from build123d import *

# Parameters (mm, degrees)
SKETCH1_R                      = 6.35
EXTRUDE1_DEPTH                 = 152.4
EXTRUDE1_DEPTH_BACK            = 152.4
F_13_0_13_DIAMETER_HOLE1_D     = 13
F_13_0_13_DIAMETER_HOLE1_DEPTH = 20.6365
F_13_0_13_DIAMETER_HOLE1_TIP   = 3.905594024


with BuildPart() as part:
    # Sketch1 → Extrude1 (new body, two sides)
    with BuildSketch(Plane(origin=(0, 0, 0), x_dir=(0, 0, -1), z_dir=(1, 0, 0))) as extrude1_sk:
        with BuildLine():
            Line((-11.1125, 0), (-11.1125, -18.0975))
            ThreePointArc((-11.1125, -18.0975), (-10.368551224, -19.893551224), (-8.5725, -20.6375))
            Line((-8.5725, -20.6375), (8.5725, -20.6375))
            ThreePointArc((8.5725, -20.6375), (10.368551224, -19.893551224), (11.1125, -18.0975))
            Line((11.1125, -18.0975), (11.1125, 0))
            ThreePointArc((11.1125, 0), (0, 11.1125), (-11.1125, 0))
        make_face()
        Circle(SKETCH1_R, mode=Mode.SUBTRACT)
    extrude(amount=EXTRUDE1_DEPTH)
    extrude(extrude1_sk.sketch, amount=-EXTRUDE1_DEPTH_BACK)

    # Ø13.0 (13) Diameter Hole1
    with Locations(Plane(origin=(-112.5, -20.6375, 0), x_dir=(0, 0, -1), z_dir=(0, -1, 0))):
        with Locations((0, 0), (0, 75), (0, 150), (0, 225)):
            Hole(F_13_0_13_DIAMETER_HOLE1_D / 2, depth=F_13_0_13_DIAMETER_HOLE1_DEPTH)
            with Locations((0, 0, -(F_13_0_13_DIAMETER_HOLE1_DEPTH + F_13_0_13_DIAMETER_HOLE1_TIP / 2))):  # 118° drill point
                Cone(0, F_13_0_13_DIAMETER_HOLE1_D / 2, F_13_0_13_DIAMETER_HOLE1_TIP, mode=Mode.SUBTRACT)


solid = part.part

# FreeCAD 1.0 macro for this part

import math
import FreeCAD as App
import Part
import Sketcher

V = App.Vector
Q = App.Units.Quantity

doc = App.newDocument("Part")
body = doc.addObject("PartDesign::Body", "Body")

# Sketch on YZ plane
sketch1 = body.newObject("Sketcher::SketchObject", "Sketch")
sketch1.AttachmentSupport = (doc.getObject("YZ_Plane"), [""])
sketch1.MapMode = "FlatFace"
sketch1.addGeometry([
    Part.LineSegment(V(0, 11.1, 0), V(-18.1, 11.1, 0)),  # 0
    Part.ArcOfCircle(Part.Circle(V(-18.1, 8.6, 0), V(0, 0, 1), 2.5), math.radians(90), math.radians(180)),  # 1
    Part.LineSegment(V(-20.6, 8.6, 0), V(-20.6, -8.6, 0)),  # 2
    Part.ArcOfCircle(Part.Circle(V(-18.1, -8.6, 0), V(0, 0, 1), 2.5), math.radians(-180), math.radians(-90)),  # 3
    Part.LineSegment(V(-18.1, -11.1, 0), V(0, -11.1, 0)),  # 4
    Part.ArcOfCircle(Part.Circle(V(0, 0, 0), V(0, 0, 1), 11.1), math.radians(-90), math.radians(90)),  # 5
    Part.Circle(V(0, 0, 0), V(0, 0, 1), 6.3),  # 6
], False)
sketch1.addConstraint([
    Sketcher.Constraint("Tangent", 0, 2, 1, 1),
    Sketcher.Constraint("Tangent", 1, 2, 2, 1),
    Sketcher.Constraint("Tangent", 2, 2, 3, 1),
    Sketcher.Constraint("Tangent", 3, 2, 4, 1),
    Sketcher.Constraint("Tangent", 4, 2, 5, 1),
    Sketcher.Constraint("Tangent", 5, 2, 0, 1),
    Sketcher.Constraint("Horizontal", 0),
    Sketcher.Constraint("Vertical", 2),
    Sketcher.Constraint("Horizontal", 4),
    Sketcher.Constraint("Coincident", 5, 3, -1, 1),
    Sketcher.Constraint("Coincident", 6, 3, -1, 1),
    Sketcher.Constraint("Equal", 1, 3),
    Sketcher.Constraint("Diameter", 6, Q("0.5 in")),
    Sketcher.Constraint("Radius", 1, Q("0.1 in")),
    Sketcher.Constraint("Radius", 5, Q("0.4375 in")),
    Sketcher.Constraint("DistanceX", 0, 2, 0, 1, Q("0.7125 in")),
])
pad1 = body.newObject("PartDesign::Pad", "Pad")
pad1.Profile = sketch1
pad1.Type = "TwoLengths"
pad1.Length = Q("6 in")
pad1.Length2 = Q("6 in")

# Sketch on XZ plane
sketch2 = body.newObject("Sketcher::SketchObject", "Sketch001")
sketch2.AttachmentSupport = (doc.getObject("XZ_Plane"), [""])
sketch2.MapMode = "FlatFace"
sketch2.AttachmentOffset = App.Placement(V(0, 0, 0.8125 * 25.4), App.Rotation())
sketch2.addGeometry([
    Part.Circle(V(-112, 0, 0), V(0, 0, 1), 6),
    Part.Circle(V(-38, 0, 0), V(0, 0, 1), 6),
    Part.Circle(V(38, 0, 0), V(0, 0, 1), 6),
    Part.Circle(V(112, 0, 0), V(0, 0, 1), 6),
], False)
sketch2.addConstraint([
    Sketcher.Constraint("Equal", 0, 1),
    Sketcher.Constraint("Equal", 1, 2),
    Sketcher.Constraint("Equal", 2, 3),
    Sketcher.Constraint("Symmetric", 1, 3, 2, 3, -1, 1),
    Sketcher.Constraint("Symmetric", 0, 3, 3, 3, -1, 1),
    Sketcher.Constraint("PointOnObject", 0, 3, -1),
    Sketcher.Constraint("PointOnObject", 1, 3, -1),
    Sketcher.Constraint("Diameter", 0, 13.0),
    Sketcher.Constraint("DistanceX", 0, 3, -1, 1, 112.5),
    Sketcher.Constraint("DistanceX", 1, 3, -1, 1, 37.5),
])
doc.recompute()
hole = body.newObject("PartDesign::Hole", "Hole")
hole.Profile = sketch2
hole.ThreadType = "None"
hole.Diameter = 13
hole.DepthType = "Dimension"
hole.Depth = 20.6365
hole.DrillPoint = "Angled"
hole.DrillPointAngle = 118

doc.recompute()
